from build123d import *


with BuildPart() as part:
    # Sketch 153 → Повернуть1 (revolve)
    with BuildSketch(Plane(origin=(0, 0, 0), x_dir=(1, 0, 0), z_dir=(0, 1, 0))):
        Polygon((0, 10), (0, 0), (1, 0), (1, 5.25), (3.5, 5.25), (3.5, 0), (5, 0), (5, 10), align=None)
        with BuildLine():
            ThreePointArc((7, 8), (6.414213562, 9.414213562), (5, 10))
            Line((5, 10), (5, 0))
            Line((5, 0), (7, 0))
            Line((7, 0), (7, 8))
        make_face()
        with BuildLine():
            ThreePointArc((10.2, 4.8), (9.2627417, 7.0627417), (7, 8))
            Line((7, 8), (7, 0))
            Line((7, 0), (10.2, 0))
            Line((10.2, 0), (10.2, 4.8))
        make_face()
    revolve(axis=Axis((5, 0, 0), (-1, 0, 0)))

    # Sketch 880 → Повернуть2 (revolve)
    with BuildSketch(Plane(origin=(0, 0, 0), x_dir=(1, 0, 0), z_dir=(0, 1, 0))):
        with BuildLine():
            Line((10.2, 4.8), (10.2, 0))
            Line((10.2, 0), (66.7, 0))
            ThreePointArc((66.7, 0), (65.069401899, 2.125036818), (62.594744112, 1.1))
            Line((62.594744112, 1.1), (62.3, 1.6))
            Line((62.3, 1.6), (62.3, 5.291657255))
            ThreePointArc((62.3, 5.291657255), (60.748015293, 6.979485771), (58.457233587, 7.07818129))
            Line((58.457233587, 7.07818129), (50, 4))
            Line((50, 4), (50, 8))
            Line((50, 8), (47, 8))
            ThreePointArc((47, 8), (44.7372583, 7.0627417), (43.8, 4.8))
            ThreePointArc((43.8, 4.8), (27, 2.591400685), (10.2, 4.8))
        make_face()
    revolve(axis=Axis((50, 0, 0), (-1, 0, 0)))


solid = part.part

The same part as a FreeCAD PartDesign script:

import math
import FreeCAD as App
import Part
import Sketcher

V = App.Vector
Q = App.Units.Quantity

doc = App.newDocument("Part")
params = doc.addObject("Spreadsheet::Sheet", "Params")
for row, (alias, value) in enumerate([
    ("sketch1_radius", "2 mm"),
    ("sketch1_radius2", "3.2 mm"),
    ("sketch1_width", "1 mm"),
    ("sketch1_width2", "5 mm"),
    ("sketch1_height", "10 mm"),
    ("revolution_angle", "360 deg"),
    ("sketch2_radius", "3 mm"),
    ("sketch2_radius2", "65 mm"),
    ("sketch2_radius3", "2.2 mm"),
    ("sketch2_radius4", "3.2 mm"),
    ("sketch2_width", "3 mm"),
    ("revolution2_angle", "360 deg"),
], start=1):
    params.set(f"A{row}", alias)
    params.set(f"B{row}", "=" + value)
    params.setAlias(f"B{row}", alias)

body = doc.addObject("PartDesign::Body", "Body")

# Sketch on XZ plane
sketch1 = body.newObject("Sketcher::SketchObject", "Sketch")
sketch1.AttachmentSupport = (doc.getObject("XZ_Plane"), [""])
sketch1.MapMode = "FlatFace"
sketch1.addGeometry(Part.LineSegment(V(0, -10, 0), V(0, 0, 0)), False)
sketch1.addGeometry(Part.LineSegment(V(0, 0, 0), V(1, 0, 0)), False)
sketch1.addGeometry(Part.LineSegment(V(1, 0, 0), V(1, -5.2, 0)), False)
sketch1.addGeometry(Part.LineSegment(V(1, -5.2, 0), V(3.5, -5.2, 0)), False)
sketch1.addGeometry(Part.LineSegment(V(3.5, -5.2, 0), V(3.5, 0, 0)), False)
sketch1.addGeometry(Part.LineSegment(V(3.5, 0, 0), V(10.2, 0, 0)), False)
sketch1.addGeometry(Part.LineSegment(V(10.2, 0, 0), V(10.2, -4.8, 0)), False)
sketch1.addGeometry(Part.ArcOfCircle(Part.Circle(V(7, -4.8, 0), V(0, 0, 1), 3.2), math.radians(-90), math.radians(0)), False)
sketch1.addGeometry(Part.ArcOfCircle(Part.Circle(V(5, -8, 0), V(0, 0, 1), 2), math.radians(-90), math.radians(0)), False)
sketch1.addGeometry(Part.LineSegment(V(5, -10, 0), V(0, -10, 0)), False)
sketch1.addConstraint(Sketcher.Constraint("Coincident", 0, 2, 1, 1))
sketch1.addConstraint(Sketcher.Constraint("Coincident", 1, 2, 2, 1))
sketch1.addConstraint(Sketcher.Constraint("Coincident", 2, 2, 3, 1))
sketch1.addConstraint(Sketcher.Constraint("Coincident", 3, 2, 4, 1))
sketch1.addConstraint(Sketcher.Constraint("Coincident", 4, 2, 5, 1))
sketch1.addConstraint(Sketcher.Constraint("Coincident", 5, 2, 6, 1))
sketch1.addConstraint(Sketcher.Constraint("Tangent", 6, 2, 7, 2))
sketch1.addConstraint(Sketcher.Constraint("Coincident", 7, 1, 8, 2))
sketch1.addConstraint(Sketcher.Constraint("Tangent", 8, 1, 9, 1))
sketch1.addConstraint(Sketcher.Constraint("Coincident", 9, 2, 0, 1))
sketch1.addConstraint(Sketcher.Constraint("Vertical", 0))
sketch1.addConstraint(Sketcher.Constraint("Horizontal", 1))
sketch1.addConstraint(Sketcher.Constraint("Vertical", 2))
sketch1.addConstraint(Sketcher.Constraint("Horizontal", 3))
sketch1.addConstraint(Sketcher.Constraint("Vertical", 4))
sketch1.addConstraint(Sketcher.Constraint("Horizontal", 5))
sketch1.addConstraint(Sketcher.Constraint("Vertical", 6))
sketch1.addConstraint(Sketcher.Constraint("Horizontal", 9))
sketch1.addConstraint(Sketcher.Constraint("Coincident", 0, 2, -1, 1))
sketch1.addConstraint(Sketcher.Constraint("PointOnObject", 4, 2, -1))
sketch1.addConstraint(Sketcher.Constraint("Horizontal", 8, 3, 7, 1))
sketch1.addConstraint(Sketcher.Constraint("Radius", 8, Q("2 mm")))
sketch1.addConstraint(Sketcher.Constraint("Radius", 7, Q("3.2 mm")))
sketch1.addConstraint(Sketcher.Constraint("DistanceX", 1, 1, 1, 2, Q("1 mm")))
sketch1.addConstraint(Sketcher.Constraint("DistanceX", 9, 2, 9, 1, Q("5 mm")))
sketch1.addConstraint(Sketcher.Constraint("DistanceY", 0, 1, 0, 2, Q("10 mm")))
sketch1.addConstraint(Sketcher.Constraint("DistanceX", 3, 1, 3, 2, Q("2.5 mm")))
sketch1.addConstraint(Sketcher.Constraint("DistanceX", 5, 1, 5, 2, Q("6.7 mm")))
sketch1.addConstraint(Sketcher.Constraint("DistanceY", 2, 2, 2, 1, Q("5.25 mm")))
sketch1.setExpression("Constraints[21]", "Params.sketch1_radius")
sketch1.setExpression("Constraints[22]", "Params.sketch1_radius2")
sketch1.setExpression("Constraints[23]", "Params.sketch1_width")
sketch1.setExpression("Constraints[24]", "Params.sketch1_width2")
sketch1.setExpression("Constraints[25]", "Params.sketch1_height")
revolution = body.newObject("PartDesign::Revolution", "Revolution")
revolution.Profile = sketch1
revolution.ReferenceAxis = (sketch1, ["H_Axis"])
revolution.setExpression("Angle", "Params.revolution_angle")

# Sketch on XZ plane
sketch2 = body.newObject("Sketcher::SketchObject", "Sketch001")
sketch2.AttachmentSupport = (doc.getObject("XZ_Plane"), [""])
sketch2.MapMode = "FlatFace"
sketch2.addGeometry(Part.LineSegment(V(10.2, -4.8, 0), V(10.2, 0, 0)), False)
sketch2.addGeometry(Part.LineSegment(V(10.2, 0, 0), V(66.7, 0, 0)), False)
sketch2.addGeometry(Part.ArcOfCircle(Part.Circle(V(64.5, 0, 0), V(0, 0, 1), 2.2), math.radians(-150), math.radians(0)), False)
sketch2.addGeometry(Part.LineSegment(V(62.6, -1.1, 0), V(62.3, -1.6, 0)), False)
sketch2.addGeometry(Part.LineSegment(V(62.3, -1.6, 0), V(62.3, -5.3, 0)), False)
sketch2.addGeometry(Part.ArcOfCircle(Part.Circle(V(59.5, -4.3, 0), V(0, 0, 1), 3), math.radians(-110), math.radians(-20)), False)
sketch2.addGeometry(Part.LineSegment(V(58.5, -7.1, 0), V(50, -4, 0)), False)
sketch2.addGeometry(Part.LineSegment(V(50, -4, 0), V(50, -8, 0)), False)
sketch2.addGeometry(Part.LineSegment(V(50, -8, 0), V(47, -8, 0)), False)
sketch2.addGeometry(Part.ArcOfCircle(Part.Circle(V(47, -4.8, 0), V(0, 0, 1), 3.2), math.radians(180), math.radians(270)), False)
sketch2.addGeometry(Part.ArcOfCircle(Part.Circle(V(27, -67.6, 0), V(0, 0, 1), 65), math.radians(75), math.radians(105)), False)
sketch2.addConstraint(Sketcher.Constraint("Coincident", 0, 2, 1, 1))
sketch2.addConstraint(Sketcher.Constraint("Coincident", 1, 2, 2, 2))
sketch2.addConstraint(Sketcher.Constraint("Coincident", 2, 1, 3, 1))
sketch2.addConstraint(Sketcher.Constraint("Coincident", 3, 2, 4, 1))
sketch2.addConstraint(Sketcher.Constraint("Coincident", 4, 2, 5, 2))
sketch2.addConstraint(Sketcher.Constraint("Tangent", 5, 1, 6, 1))
sketch2.addConstraint(Sketcher.Constraint("Coincident", 6, 2, 7, 1))
sketch2.addConstraint(Sketcher.Constraint("Coincident", 7, 2, 8, 1))
sketch2.addConstraint(Sketcher.Constraint("Tangent", 8, 2, 9, 2))
sketch2.addConstraint(Sketcher.Constraint("Coincident", 9, 1, 10, 1))
sketch2.addConstraint(Sketcher.Constraint("Coincident", 10, 2, 0, 1))
sketch2.addConstraint(Sketcher.Constraint("Vertical", 0))
sketch2.addConstraint(Sketcher.Constraint("Horizontal", 1))
sketch2.addConstraint(Sketcher.Constraint("Vertical", 4))
sketch2.addConstraint(Sketcher.Constraint("Vertical", 7))
sketch2.addConstraint(Sketcher.Constraint("Horizontal", 8))
sketch2.addConstraint(Sketcher.Constraint("PointOnObject", 2, 3, -1))
sketch2.addConstraint(Sketcher.Constraint("PointOnObject", 0, 2, -1))
sketch2.addConstraint(Sketcher.Constraint("Horizontal", 9, 1, 10, 2))
sketch2.addConstraint(Sketcher.Constraint("Radius", 5, Q("3 mm")))
sketch2.addConstraint(Sketcher.Constraint("Radius", 10, Q("65 mm")))
sketch2.addConstraint(Sketcher.Constraint("Radius", 2, Q("2.2 mm")))
sketch2.addConstraint(Sketcher.Constraint("Radius", 9, Q("3.2 mm")))
sketch2.addConstraint(Sketcher.Constraint("DistanceX", 8, 2, 8, 1, Q("3 mm")))
sketch2.addConstraint(Sketcher.Constraint("DistanceY", 7, 2, 7, 1, Q("4 mm")))
sketch2.addConstraint(Sketcher.Constraint("Angle", 6, Q("160 deg")))
sketch2.addConstraint(Sketcher.Constraint("Distance", 6, Q("9 mm")))
sketch2.addConstraint(Sketcher.Constraint("DistanceX", 1, 1, 1, 2, Q("56.5 mm")))
sketch2.addConstraint(Sketcher.Constraint("DistanceY", 0, 1, 0, 2, Q("4.8 mm")))
sketch2.addConstraint(Sketcher.Constraint("DistanceX", -1, 1, 9, 3, Q("47 mm")))
sketch2.addConstraint(Sketcher.Constraint("DistanceX", -1, 1, 10, 3, Q("27 mm")))
sketch2.addConstraint(Sketcher.Constraint("DistanceY", 6, 2, -1, 1, Q("4 mm")))
sketch2.addConstraint(Sketcher.Constraint("DistanceY", 2, 1, -1, 1, Q("1.1 mm")))
sketch2.addConstraint(Sketcher.Constraint("DistanceX", -1, 1, 3, 2, Q("62.3 mm")))
sketch2.addConstraint(Sketcher.Constraint("DistanceY", 3, 2, -1, 1, Q("1.6 mm")))
sketch2.setExpression("Constraints[19]", "Params.sketch2_radius")
sketch2.setExpression("Constraints[20]", "Params.sketch2_radius2")
sketch2.setExpression("Constraints[21]", "Params.sketch2_radius3")
sketch2.setExpression("Constraints[22]", "Params.sketch2_radius4")
sketch2.setExpression("Constraints[23]", "Params.sketch2_width")
revolution2 = body.newObject("PartDesign::Revolution", "Revolution001")
revolution2.Profile = sketch2
revolution2.ReferenceAxis = (sketch2, ["H_Axis"])
revolution2.setExpression("Angle", "Params.revolution2_angle")

doc.recompute()
